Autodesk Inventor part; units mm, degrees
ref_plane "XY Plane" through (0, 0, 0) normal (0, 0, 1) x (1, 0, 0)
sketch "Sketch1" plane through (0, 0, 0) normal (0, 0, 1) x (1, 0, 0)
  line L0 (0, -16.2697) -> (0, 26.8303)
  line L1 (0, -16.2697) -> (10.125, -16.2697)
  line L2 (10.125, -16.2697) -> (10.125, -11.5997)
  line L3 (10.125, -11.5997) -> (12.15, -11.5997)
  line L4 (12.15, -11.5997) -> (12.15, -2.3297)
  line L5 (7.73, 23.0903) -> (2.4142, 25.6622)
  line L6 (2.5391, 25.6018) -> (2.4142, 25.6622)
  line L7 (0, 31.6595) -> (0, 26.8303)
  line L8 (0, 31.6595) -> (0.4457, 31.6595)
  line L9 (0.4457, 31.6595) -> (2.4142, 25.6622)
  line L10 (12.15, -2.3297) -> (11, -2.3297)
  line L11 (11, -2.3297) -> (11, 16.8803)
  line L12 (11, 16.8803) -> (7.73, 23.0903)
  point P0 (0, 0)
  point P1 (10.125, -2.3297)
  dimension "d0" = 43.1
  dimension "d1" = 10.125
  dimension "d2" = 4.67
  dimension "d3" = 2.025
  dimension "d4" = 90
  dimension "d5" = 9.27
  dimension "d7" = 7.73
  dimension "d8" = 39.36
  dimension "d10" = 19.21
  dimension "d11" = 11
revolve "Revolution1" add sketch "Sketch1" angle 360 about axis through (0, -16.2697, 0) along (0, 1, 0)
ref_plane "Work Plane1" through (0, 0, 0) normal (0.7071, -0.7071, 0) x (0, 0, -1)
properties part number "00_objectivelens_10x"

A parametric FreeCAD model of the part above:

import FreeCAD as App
import Part
import Sketcher
from FreeCAD import Vector
Q = App.Units.Quantity

doc = App.newDocument("Part")
body = doc.addObject("PartDesign::Body", "Body")

# Sketch on XY plane
sketch1 = body.newObject("Sketcher::SketchObject", "Sketch")
sketch1.AttachmentSupport = (doc.getObject("XY_Plane"), [""])
sketch1.MapMode = "FlatFace"
sketch1.addGeometry(Part.LineSegment(Vector(0, 31.66, 0), Vector(0, -16.27, 0)), False)
sketch1.addGeometry(Part.LineSegment(Vector(0, -16.27, 0), Vector(10.12, -16.27, 0)), False)
sketch1.addGeometry(Part.LineSegment(Vector(10.12, -16.27, 0), Vector(10.12, -11.6, 0)), False)
sketch1.addGeometry(Part.LineSegment(Vector(10.12, -11.6, 0), Vector(12.15, -11.6, 0)), False)
sketch1.addGeometry(Part.LineSegment(Vector(12.15, -11.6, 0), Vector(12.15, -2.33, 0)), False)
sketch1.addGeometry(Part.LineSegment(Vector(12.15, -2.33, 0), Vector(11, -2.33, 0)), False)
sketch1.addGeometry(Part.LineSegment(Vector(11, -2.33, 0), Vector(11, 16.88, 0)), False)
sketch1.addGeometry(Part.LineSegment(Vector(11, 16.88, 0), Vector(7.73, 23.09, 0)), False)
sketch1.addGeometry(Part.LineSegment(Vector(7.73, 23.09, 0), Vector(2.41, 25.66, 0)), False)
sketch1.addGeometry(Part.LineSegment(Vector(2.41, 25.66, 0), Vector(0.45, 31.66, 0)), False)
sketch1.addGeometry(Part.LineSegment(Vector(0.45, 31.66, 0), Vector(0, 31.66, 0)), False)
sketch1.addConstraint(Sketcher.Constraint("Coincident", 0, 2, 1, 1))
sketch1.addConstraint(Sketcher.Constraint("Coincident", 1, 2, 2, 1))
sketch1.addConstraint(Sketcher.Constraint("Coincident", 2, 2, 3, 1))
sketch1.addConstraint(Sketcher.Constraint("Coincident", 3, 2, 4, 1))
sketch1.addConstraint(Sketcher.Constraint("Coincident", 4, 2, 5, 1))
sketch1.addConstraint(Sketcher.Constraint("Coincident", 5, 2, 6, 1))
sketch1.addConstraint(Sketcher.Constraint("Coincident", 6, 2, 7, 1))
sketch1.addConstraint(Sketcher.Constraint("Coincident", 7, 2, 8, 1))
sketch1.addConstraint(Sketcher.Constraint("Coincident", 8, 2, 9, 1))
sketch1.addConstraint(Sketcher.Constraint("Coincident", 9, 2, 10, 1))
sketch1.addConstraint(Sketcher.Constraint("Coincident", 10, 2, 0, 1))
sketch1.addConstraint(Sketcher.Constraint("Vertical", 0))
sketch1.addConstraint(Sketcher.Constraint("Horizontal", 1))
sketch1.addConstraint(Sketcher.Constraint("Vertical", 2))
sketch1.addConstraint(Sketcher.Constraint("Horizontal", 3))
sketch1.addConstraint(Sketcher.Constraint("Vertical", 4))
sketch1.addConstraint(Sketcher.Constraint("Horizontal", 5))
sketch1.addConstraint(Sketcher.Constraint("Vertical", 6))
sketch1.addConstraint(Sketcher.Constraint("Horizontal", 10))
sketch1.addConstraint(Sketcher.Constraint("PointOnObject", 0, 2, -2))
sketch1.addConstraint(Sketcher.Constraint("DistanceX", -1, 1, 5, 2, 11.0))
sketch1.addConstraint(Sketcher.Constraint("DistanceY", 2, 1, 2, 2, 4.67))
sketch1.addConstraint(Sketcher.Constraint("DistanceY", 4, 1, 4, 2, 9.27))
sketch1.addConstraint(Sketcher.Constraint("DistanceY", 6, 1, 6, 2, 19.21))
sketch1.addConstraint(Sketcher.Constraint("DistanceX", 1, 1, 1, 2, 10.125))
sketch1.addConstraint(Sketcher.Constraint("DistanceX", 3, 1, 3, 2, 2.025))
sketch1.addConstraint(Sketcher.Constraint("DistanceX", -1, 1, 7, 2, 7.73))
sketch1.addConstraint(Sketcher.Constraint("Angle", 7, Q("117.77 deg")))
sketch1.addConstraint(Sketcher.Constraint("Distance", 9, 6.312))
sketch1.addConstraint(Sketcher.Constraint("DistanceX", 10, 2, 10, 1, 0.4457))
sketch1.addConstraint(Sketcher.Constraint("DistanceY", 0, 2, 0, 1, 47.9292))
sketch1.addConstraint(Sketcher.Constraint("DistanceY", 7, 2, 8, 2, 2.572))
sketch1.addConstraint(Sketcher.Constraint("DistanceY", 0, 2, -1, 1, 16.2697))
revolution = body.newObject("PartDesign::Revolution", "Revolution")
revolution.Profile = sketch1
revolution.ReferenceAxis = (sketch1, ["V_Axis"])
revolution.Angle = 360

doc.recompute()
